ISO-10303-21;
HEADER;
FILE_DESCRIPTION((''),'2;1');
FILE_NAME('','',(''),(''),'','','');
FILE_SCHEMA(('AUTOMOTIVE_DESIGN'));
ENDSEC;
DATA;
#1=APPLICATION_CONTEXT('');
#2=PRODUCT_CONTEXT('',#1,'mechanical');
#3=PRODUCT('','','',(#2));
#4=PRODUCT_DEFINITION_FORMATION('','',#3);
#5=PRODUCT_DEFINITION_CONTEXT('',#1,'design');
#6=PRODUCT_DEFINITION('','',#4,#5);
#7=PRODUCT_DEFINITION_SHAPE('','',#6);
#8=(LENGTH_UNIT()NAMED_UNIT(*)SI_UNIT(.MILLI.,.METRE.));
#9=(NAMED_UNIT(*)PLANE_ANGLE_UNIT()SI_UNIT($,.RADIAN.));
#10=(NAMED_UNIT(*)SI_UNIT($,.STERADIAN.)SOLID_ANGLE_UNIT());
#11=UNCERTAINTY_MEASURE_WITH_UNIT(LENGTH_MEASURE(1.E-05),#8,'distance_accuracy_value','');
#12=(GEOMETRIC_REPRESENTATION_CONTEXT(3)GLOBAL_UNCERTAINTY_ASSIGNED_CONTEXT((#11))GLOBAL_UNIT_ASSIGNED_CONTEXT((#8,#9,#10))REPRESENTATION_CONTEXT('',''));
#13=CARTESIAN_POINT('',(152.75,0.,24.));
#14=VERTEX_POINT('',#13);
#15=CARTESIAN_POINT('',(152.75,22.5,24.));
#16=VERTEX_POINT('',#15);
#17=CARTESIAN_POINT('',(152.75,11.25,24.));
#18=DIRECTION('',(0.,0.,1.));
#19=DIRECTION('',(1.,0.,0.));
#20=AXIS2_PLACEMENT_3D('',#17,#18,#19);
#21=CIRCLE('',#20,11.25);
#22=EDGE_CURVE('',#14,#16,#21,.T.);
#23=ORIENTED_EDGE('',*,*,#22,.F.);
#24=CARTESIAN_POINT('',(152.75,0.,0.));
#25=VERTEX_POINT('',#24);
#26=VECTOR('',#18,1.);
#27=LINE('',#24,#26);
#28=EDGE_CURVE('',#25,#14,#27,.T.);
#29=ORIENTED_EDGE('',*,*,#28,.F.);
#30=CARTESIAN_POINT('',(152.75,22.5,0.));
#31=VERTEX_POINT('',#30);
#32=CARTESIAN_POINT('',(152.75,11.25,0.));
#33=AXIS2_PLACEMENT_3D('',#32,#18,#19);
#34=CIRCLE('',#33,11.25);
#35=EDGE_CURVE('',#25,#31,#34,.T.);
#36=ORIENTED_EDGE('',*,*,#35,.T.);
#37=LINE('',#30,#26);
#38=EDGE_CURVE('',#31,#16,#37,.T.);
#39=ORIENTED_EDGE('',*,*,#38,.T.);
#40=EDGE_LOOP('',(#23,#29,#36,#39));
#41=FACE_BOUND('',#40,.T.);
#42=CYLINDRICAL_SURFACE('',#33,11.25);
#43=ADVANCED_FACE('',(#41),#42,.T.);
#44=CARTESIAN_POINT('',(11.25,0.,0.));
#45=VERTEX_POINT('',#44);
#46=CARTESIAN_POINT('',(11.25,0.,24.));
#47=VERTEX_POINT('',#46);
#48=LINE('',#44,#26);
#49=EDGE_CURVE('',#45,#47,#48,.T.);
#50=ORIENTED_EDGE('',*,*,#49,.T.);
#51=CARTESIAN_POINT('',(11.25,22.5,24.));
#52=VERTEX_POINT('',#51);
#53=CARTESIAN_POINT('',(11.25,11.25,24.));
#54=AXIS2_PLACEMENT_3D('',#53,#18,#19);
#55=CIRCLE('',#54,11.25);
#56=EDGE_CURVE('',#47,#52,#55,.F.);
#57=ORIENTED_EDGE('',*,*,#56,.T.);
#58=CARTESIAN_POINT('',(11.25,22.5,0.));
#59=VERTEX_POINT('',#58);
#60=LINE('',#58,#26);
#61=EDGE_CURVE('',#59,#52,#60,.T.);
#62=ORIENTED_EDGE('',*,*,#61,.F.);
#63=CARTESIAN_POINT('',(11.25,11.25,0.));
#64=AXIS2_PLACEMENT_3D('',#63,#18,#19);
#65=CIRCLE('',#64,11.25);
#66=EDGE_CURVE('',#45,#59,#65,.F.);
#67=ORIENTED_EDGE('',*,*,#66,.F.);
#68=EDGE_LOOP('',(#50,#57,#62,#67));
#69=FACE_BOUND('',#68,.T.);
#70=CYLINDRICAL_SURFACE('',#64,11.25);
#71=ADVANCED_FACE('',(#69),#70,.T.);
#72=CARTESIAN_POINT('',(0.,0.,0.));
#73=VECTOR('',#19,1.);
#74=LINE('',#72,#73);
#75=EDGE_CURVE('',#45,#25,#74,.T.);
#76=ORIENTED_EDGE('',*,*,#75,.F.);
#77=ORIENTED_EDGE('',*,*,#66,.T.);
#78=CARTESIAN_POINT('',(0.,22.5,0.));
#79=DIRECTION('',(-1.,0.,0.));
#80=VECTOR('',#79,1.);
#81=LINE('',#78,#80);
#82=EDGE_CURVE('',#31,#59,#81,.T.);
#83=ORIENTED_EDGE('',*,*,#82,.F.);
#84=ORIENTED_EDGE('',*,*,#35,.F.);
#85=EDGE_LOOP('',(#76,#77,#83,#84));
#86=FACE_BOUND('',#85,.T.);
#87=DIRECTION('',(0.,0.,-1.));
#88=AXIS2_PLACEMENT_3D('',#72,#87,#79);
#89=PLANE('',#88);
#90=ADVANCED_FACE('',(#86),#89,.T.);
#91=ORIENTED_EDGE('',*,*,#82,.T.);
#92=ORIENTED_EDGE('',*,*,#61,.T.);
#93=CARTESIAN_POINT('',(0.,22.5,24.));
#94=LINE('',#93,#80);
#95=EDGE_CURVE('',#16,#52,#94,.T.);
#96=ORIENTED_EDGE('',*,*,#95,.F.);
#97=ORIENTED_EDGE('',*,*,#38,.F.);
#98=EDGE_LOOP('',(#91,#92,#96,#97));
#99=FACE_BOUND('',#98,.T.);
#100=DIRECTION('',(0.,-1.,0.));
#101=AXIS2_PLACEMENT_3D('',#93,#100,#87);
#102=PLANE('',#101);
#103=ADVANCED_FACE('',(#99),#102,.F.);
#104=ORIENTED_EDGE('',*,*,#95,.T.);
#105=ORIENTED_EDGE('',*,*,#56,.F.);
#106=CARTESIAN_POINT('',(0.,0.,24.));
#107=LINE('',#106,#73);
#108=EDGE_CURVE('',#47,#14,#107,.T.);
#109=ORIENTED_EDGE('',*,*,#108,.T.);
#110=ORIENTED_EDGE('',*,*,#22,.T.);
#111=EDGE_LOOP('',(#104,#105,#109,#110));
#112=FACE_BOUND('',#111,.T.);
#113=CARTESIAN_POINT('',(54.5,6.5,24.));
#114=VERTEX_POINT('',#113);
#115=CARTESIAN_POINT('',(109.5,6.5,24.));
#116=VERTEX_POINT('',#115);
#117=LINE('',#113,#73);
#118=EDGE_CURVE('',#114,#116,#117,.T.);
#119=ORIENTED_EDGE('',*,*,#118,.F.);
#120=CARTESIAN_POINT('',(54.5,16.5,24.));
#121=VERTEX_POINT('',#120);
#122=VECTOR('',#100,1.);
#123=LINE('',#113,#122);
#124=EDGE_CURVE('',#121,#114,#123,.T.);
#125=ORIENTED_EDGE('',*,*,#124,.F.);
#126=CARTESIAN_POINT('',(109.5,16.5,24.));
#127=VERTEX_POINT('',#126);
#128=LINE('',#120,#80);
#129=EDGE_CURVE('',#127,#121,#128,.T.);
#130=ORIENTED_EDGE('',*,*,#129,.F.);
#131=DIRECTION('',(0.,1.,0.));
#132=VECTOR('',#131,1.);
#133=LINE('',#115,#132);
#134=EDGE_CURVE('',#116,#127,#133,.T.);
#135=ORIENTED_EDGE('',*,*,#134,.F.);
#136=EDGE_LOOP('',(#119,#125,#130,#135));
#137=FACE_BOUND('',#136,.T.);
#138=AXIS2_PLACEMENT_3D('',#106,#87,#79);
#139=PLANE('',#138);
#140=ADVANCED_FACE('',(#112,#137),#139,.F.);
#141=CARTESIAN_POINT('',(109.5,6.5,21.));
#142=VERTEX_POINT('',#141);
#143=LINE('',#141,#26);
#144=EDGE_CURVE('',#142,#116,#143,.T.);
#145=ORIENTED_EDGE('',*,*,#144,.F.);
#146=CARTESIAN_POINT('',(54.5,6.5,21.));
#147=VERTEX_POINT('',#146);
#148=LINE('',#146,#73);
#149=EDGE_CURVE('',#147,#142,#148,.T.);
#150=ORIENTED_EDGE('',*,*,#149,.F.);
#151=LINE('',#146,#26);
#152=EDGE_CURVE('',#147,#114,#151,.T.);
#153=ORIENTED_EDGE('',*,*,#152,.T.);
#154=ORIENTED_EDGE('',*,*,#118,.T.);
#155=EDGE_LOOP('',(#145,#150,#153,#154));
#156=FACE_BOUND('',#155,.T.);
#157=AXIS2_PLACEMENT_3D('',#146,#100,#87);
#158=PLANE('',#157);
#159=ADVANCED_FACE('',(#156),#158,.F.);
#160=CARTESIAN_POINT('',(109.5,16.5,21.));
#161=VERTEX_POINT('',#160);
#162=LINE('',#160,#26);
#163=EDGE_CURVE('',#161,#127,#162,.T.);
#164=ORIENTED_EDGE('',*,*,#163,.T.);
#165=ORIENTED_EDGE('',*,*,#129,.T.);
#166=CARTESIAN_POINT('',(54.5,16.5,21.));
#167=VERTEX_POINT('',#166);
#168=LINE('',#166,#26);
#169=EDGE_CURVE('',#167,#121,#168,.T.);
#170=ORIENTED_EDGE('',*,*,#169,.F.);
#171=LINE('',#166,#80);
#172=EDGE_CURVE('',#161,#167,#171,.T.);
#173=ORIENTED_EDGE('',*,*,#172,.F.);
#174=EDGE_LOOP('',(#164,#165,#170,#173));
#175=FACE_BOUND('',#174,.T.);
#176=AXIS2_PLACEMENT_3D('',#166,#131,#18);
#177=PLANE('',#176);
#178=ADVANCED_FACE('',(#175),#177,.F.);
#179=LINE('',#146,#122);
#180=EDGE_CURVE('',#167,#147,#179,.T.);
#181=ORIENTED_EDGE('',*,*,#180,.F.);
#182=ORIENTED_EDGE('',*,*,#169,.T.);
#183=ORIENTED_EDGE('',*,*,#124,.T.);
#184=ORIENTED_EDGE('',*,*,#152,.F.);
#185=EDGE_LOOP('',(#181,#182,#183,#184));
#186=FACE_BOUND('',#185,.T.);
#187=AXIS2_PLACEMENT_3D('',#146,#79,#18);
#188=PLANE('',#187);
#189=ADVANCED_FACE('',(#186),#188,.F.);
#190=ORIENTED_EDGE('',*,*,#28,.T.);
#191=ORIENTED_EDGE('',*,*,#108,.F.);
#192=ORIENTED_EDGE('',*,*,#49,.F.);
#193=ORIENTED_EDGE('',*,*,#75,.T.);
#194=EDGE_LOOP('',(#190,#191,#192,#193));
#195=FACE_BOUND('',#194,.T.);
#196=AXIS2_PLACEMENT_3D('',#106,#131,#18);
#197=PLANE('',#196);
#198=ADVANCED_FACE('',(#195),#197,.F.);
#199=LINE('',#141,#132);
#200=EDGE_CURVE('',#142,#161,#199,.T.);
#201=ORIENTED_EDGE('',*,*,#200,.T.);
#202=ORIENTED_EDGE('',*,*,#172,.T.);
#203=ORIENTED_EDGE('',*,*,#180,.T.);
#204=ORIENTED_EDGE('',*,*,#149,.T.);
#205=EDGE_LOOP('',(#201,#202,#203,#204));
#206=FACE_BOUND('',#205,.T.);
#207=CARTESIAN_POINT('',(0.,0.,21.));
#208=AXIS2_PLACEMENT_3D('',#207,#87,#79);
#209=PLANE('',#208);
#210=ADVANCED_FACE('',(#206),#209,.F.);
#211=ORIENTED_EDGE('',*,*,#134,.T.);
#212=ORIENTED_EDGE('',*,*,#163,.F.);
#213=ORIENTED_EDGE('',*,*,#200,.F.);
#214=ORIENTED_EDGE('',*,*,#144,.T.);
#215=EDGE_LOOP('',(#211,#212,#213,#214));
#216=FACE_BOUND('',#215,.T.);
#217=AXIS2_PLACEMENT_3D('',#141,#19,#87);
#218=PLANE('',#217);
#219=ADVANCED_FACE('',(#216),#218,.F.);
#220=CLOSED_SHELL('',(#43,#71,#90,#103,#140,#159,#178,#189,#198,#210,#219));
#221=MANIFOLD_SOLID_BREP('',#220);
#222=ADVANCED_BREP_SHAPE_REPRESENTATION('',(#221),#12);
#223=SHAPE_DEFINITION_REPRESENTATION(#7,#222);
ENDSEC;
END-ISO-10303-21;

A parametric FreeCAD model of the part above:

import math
import FreeCAD as App
import Part
import Sketcher

V = App.Vector


def add_polygon(sketch, points):
    """Adds a closed chain of lines whose ends are joined by coincident constraints."""
    first, n = sketch.GeometryCount, len(points)
    for a, b in zip(points, points[1:] + points[:1]):
        sketch.addGeometry(Part.LineSegment(App.Vector(*a, 0), App.Vector(*b, 0)), False)
    for i in range(n):
        sketch.addConstraint(Sketcher.Constraint("Coincident", first + i, 2, first + (i + 1) % n, 1))

doc = App.newDocument("Part")
body = doc.addObject("PartDesign::Body", "Body")

sketch1 = body.newObject("Sketcher::SketchObject", "Sketch")
sketch1.AttachmentSupport = (doc.getObject("XY_Plane"), [""])
sketch1.MapMode = "FlatFace"
add_polygon(sketch1, [(0, 22), (0, 0), (164, 0), (164, 22)])
sketch1.addConstraint(Sketcher.Constraint("Vertical", 0))
sketch1.addConstraint(Sketcher.Constraint("Horizontal", 1))
sketch1.addConstraint(Sketcher.Constraint("Vertical", 2))
sketch1.addConstraint(Sketcher.Constraint("Horizontal", 3))
sketch1.addConstraint(Sketcher.Constraint("Coincident", 0, 2, -1, 1))
sketch1.addConstraint(Sketcher.Constraint("DistanceX", 1, 1, 1, 2, 164.0))
sketch1.addConstraint(Sketcher.Constraint("DistanceY", 0, 2, 0, 1, 22.5))
pad1 = body.newObject("PartDesign::Pad", "Pad")
pad1.Profile = sketch1
pad1.Length = 24

sketch2 = body.newObject("Sketcher::SketchObject", "Sketch001")
sketch2.AttachmentSupport = (doc.getObject("XY_Plane"), [""])
sketch2.MapMode = "FlatFace"
sketch2.AttachmentOffset = App.Placement(V(0, 0, 24), App.Rotation())
sketch2.addGeometry(Part.ArcOfCircle(Part.Circle(V(11, 11, 0), V(0, 0, 1), 11), math.radians(90), math.radians(180)), False)
sketch2.addGeometry(Part.LineSegment(V(11, 22, 0), V(0, 22, 0)), False)
sketch2.addGeometry(Part.LineSegment(V(0, 22, 0), V(0, 11, 0)), False)
sketch2.addGeometry(Part.ArcOfCircle(Part.Circle(V(11, 11, 0), V(0, 0, 1), 11), math.radians(-180), math.radians(-90)), False)
sketch2.addGeometry(Part.LineSegment(V(0, 11, 0), V(0, 0, 0)), False)
sketch2.addGeometry(Part.LineSegment(V(0, 0, 0), V(11, 0, 0)), False)
sketch2.addGeometry(Part.LineSegment(V(164, 22, 0), V(153, 22, 0)), False)
sketch2.addGeometry(Part.ArcOfCircle(Part.Circle(V(153, 11, 0), V(0, 0, 1), 11), math.radians(0), math.radians(90)), False)
sketch2.addGeometry(Part.LineSegment(V(164, 11, 0), V(164, 22, 0)), False)
sketch2.addGeometry(Part.LineSegment(V(164, 0, 0), V(164, 11, 0)), False)
sketch2.addGeometry(Part.ArcOfCircle(Part.Circle(V(153, 11, 0), V(0, 0, 1), 11), math.radians(-90), math.radians(0)), False)
sketch2.addGeometry(Part.LineSegment(V(153, 0, 0), V(164, 0, 0)), False)
sketch2.addConstraint(Sketcher.Constraint("Tangent", 0, 1, 1, 1))
sketch2.addConstraint(Sketcher.Constraint("Coincident", 1, 2, 2, 1))
sketch2.addConstraint(Sketcher.Constraint("Tangent", 2, 2, 0, 2))
sketch2.addConstraint(Sketcher.Constraint("Tangent", 3, 1, 4, 1))
sketch2.addConstraint(Sketcher.Constraint("Coincident", 4, 2, 5, 1))
sketch2.addConstraint(Sketcher.Constraint("Tangent", 5, 2, 3, 2))
sketch2.addConstraint(Sketcher.Constraint("Tangent", 6, 2, 7, 2))
sketch2.addConstraint(Sketcher.Constraint("Tangent", 7, 1, 8, 1))
sketch2.addConstraint(Sketcher.Constraint("Coincident", 8, 2, 6, 1))
sketch2.addConstraint(Sketcher.Constraint("Tangent", 9, 2, 10, 2))
sketch2.addConstraint(Sketcher.Constraint("Tangent", 10, 1, 11, 1))
sketch2.addConstraint(Sketcher.Constraint("Coincident", 11, 2, 9, 1))
sketch2.addConstraint(Sketcher.Constraint("Horizontal", 1))
sketch2.addConstraint(Sketcher.Constraint("Vertical", 2))
sketch2.addConstraint(Sketcher.Constraint("Vertical", 4))
sketch2.addConstraint(Sketcher.Constraint("Horizontal", 5))
sketch2.addConstraint(Sketcher.Constraint("Horizontal", 6))
sketch2.addConstraint(Sketcher.Constraint("Vertical", 8))
sketch2.addConstraint(Sketcher.Constraint("Vertical", 9))
sketch2.addConstraint(Sketcher.Constraint("Horizontal", 11))
sketch2.addConstraint(Sketcher.Constraint("Coincident", 4, 2, -1, 1))
sketch2.addConstraint(Sketcher.Constraint("Coincident", 3, 3, 0, 3))
sketch2.addConstraint(Sketcher.Constraint("Coincident", 10, 3, 7, 3))
sketch2.addConstraint(Sketcher.Constraint("Equal", 0, 3))
sketch2.addConstraint(Sketcher.Constraint("Equal", 3, 7))
sketch2.addConstraint(Sketcher.Constraint("Equal", 7, 10))
sketch2.addConstraint(Sketcher.Constraint("PointOnObject", 10, 1, -1))
sketch2.addConstraint(Sketcher.Constraint("Radius", 0, 11.25))
sketch2.addConstraint(Sketcher.Constraint("DistanceX", -1, 1, 7, 1, 164.0))
pocket1 = body.newObject("PartDesign::Pocket", "Pocket")
pocket1.Profile = sketch2
pocket1.Length = 24

sketch3 = body.newObject("Sketcher::SketchObject", "Sketch002")
sketch3.AttachmentSupport = (doc.getObject("XY_Plane"), [""])
sketch3.MapMode = "FlatFace"
sketch3.AttachmentOffset = App.Placement(V(0, 0, 24), App.Rotation())
add_polygon(sketch3, [(54, 16), (54, 6), (110, 6), (110, 16)])
sketch3.addConstraint(Sketcher.Constraint("Vertical", 0))
sketch3.addConstraint(Sketcher.Constraint("Horizontal", 1))
sketch3.addConstraint(Sketcher.Constraint("Vertical", 2))
sketch3.addConstraint(Sketcher.Constraint("Horizontal", 3))
sketch3.addConstraint(Sketcher.Constraint("DistanceX", 1, 1, 1, 2, 55.0))
sketch3.addConstraint(Sketcher.Constraint("DistanceY", 0, 2, 0, 1, 10.0))
sketch3.addConstraint(Sketcher.Constraint("DistanceX", -1, 1, 0, 2, 54.5))
sketch3.addConstraint(Sketcher.Constraint("DistanceY", -1, 1, 0, 2, 6.5))
pocket2 = body.newObject("PartDesign::Pocket", "Pocket001")
pocket2.Profile = sketch3
pocket2.Length = 3

doc.recompute()
